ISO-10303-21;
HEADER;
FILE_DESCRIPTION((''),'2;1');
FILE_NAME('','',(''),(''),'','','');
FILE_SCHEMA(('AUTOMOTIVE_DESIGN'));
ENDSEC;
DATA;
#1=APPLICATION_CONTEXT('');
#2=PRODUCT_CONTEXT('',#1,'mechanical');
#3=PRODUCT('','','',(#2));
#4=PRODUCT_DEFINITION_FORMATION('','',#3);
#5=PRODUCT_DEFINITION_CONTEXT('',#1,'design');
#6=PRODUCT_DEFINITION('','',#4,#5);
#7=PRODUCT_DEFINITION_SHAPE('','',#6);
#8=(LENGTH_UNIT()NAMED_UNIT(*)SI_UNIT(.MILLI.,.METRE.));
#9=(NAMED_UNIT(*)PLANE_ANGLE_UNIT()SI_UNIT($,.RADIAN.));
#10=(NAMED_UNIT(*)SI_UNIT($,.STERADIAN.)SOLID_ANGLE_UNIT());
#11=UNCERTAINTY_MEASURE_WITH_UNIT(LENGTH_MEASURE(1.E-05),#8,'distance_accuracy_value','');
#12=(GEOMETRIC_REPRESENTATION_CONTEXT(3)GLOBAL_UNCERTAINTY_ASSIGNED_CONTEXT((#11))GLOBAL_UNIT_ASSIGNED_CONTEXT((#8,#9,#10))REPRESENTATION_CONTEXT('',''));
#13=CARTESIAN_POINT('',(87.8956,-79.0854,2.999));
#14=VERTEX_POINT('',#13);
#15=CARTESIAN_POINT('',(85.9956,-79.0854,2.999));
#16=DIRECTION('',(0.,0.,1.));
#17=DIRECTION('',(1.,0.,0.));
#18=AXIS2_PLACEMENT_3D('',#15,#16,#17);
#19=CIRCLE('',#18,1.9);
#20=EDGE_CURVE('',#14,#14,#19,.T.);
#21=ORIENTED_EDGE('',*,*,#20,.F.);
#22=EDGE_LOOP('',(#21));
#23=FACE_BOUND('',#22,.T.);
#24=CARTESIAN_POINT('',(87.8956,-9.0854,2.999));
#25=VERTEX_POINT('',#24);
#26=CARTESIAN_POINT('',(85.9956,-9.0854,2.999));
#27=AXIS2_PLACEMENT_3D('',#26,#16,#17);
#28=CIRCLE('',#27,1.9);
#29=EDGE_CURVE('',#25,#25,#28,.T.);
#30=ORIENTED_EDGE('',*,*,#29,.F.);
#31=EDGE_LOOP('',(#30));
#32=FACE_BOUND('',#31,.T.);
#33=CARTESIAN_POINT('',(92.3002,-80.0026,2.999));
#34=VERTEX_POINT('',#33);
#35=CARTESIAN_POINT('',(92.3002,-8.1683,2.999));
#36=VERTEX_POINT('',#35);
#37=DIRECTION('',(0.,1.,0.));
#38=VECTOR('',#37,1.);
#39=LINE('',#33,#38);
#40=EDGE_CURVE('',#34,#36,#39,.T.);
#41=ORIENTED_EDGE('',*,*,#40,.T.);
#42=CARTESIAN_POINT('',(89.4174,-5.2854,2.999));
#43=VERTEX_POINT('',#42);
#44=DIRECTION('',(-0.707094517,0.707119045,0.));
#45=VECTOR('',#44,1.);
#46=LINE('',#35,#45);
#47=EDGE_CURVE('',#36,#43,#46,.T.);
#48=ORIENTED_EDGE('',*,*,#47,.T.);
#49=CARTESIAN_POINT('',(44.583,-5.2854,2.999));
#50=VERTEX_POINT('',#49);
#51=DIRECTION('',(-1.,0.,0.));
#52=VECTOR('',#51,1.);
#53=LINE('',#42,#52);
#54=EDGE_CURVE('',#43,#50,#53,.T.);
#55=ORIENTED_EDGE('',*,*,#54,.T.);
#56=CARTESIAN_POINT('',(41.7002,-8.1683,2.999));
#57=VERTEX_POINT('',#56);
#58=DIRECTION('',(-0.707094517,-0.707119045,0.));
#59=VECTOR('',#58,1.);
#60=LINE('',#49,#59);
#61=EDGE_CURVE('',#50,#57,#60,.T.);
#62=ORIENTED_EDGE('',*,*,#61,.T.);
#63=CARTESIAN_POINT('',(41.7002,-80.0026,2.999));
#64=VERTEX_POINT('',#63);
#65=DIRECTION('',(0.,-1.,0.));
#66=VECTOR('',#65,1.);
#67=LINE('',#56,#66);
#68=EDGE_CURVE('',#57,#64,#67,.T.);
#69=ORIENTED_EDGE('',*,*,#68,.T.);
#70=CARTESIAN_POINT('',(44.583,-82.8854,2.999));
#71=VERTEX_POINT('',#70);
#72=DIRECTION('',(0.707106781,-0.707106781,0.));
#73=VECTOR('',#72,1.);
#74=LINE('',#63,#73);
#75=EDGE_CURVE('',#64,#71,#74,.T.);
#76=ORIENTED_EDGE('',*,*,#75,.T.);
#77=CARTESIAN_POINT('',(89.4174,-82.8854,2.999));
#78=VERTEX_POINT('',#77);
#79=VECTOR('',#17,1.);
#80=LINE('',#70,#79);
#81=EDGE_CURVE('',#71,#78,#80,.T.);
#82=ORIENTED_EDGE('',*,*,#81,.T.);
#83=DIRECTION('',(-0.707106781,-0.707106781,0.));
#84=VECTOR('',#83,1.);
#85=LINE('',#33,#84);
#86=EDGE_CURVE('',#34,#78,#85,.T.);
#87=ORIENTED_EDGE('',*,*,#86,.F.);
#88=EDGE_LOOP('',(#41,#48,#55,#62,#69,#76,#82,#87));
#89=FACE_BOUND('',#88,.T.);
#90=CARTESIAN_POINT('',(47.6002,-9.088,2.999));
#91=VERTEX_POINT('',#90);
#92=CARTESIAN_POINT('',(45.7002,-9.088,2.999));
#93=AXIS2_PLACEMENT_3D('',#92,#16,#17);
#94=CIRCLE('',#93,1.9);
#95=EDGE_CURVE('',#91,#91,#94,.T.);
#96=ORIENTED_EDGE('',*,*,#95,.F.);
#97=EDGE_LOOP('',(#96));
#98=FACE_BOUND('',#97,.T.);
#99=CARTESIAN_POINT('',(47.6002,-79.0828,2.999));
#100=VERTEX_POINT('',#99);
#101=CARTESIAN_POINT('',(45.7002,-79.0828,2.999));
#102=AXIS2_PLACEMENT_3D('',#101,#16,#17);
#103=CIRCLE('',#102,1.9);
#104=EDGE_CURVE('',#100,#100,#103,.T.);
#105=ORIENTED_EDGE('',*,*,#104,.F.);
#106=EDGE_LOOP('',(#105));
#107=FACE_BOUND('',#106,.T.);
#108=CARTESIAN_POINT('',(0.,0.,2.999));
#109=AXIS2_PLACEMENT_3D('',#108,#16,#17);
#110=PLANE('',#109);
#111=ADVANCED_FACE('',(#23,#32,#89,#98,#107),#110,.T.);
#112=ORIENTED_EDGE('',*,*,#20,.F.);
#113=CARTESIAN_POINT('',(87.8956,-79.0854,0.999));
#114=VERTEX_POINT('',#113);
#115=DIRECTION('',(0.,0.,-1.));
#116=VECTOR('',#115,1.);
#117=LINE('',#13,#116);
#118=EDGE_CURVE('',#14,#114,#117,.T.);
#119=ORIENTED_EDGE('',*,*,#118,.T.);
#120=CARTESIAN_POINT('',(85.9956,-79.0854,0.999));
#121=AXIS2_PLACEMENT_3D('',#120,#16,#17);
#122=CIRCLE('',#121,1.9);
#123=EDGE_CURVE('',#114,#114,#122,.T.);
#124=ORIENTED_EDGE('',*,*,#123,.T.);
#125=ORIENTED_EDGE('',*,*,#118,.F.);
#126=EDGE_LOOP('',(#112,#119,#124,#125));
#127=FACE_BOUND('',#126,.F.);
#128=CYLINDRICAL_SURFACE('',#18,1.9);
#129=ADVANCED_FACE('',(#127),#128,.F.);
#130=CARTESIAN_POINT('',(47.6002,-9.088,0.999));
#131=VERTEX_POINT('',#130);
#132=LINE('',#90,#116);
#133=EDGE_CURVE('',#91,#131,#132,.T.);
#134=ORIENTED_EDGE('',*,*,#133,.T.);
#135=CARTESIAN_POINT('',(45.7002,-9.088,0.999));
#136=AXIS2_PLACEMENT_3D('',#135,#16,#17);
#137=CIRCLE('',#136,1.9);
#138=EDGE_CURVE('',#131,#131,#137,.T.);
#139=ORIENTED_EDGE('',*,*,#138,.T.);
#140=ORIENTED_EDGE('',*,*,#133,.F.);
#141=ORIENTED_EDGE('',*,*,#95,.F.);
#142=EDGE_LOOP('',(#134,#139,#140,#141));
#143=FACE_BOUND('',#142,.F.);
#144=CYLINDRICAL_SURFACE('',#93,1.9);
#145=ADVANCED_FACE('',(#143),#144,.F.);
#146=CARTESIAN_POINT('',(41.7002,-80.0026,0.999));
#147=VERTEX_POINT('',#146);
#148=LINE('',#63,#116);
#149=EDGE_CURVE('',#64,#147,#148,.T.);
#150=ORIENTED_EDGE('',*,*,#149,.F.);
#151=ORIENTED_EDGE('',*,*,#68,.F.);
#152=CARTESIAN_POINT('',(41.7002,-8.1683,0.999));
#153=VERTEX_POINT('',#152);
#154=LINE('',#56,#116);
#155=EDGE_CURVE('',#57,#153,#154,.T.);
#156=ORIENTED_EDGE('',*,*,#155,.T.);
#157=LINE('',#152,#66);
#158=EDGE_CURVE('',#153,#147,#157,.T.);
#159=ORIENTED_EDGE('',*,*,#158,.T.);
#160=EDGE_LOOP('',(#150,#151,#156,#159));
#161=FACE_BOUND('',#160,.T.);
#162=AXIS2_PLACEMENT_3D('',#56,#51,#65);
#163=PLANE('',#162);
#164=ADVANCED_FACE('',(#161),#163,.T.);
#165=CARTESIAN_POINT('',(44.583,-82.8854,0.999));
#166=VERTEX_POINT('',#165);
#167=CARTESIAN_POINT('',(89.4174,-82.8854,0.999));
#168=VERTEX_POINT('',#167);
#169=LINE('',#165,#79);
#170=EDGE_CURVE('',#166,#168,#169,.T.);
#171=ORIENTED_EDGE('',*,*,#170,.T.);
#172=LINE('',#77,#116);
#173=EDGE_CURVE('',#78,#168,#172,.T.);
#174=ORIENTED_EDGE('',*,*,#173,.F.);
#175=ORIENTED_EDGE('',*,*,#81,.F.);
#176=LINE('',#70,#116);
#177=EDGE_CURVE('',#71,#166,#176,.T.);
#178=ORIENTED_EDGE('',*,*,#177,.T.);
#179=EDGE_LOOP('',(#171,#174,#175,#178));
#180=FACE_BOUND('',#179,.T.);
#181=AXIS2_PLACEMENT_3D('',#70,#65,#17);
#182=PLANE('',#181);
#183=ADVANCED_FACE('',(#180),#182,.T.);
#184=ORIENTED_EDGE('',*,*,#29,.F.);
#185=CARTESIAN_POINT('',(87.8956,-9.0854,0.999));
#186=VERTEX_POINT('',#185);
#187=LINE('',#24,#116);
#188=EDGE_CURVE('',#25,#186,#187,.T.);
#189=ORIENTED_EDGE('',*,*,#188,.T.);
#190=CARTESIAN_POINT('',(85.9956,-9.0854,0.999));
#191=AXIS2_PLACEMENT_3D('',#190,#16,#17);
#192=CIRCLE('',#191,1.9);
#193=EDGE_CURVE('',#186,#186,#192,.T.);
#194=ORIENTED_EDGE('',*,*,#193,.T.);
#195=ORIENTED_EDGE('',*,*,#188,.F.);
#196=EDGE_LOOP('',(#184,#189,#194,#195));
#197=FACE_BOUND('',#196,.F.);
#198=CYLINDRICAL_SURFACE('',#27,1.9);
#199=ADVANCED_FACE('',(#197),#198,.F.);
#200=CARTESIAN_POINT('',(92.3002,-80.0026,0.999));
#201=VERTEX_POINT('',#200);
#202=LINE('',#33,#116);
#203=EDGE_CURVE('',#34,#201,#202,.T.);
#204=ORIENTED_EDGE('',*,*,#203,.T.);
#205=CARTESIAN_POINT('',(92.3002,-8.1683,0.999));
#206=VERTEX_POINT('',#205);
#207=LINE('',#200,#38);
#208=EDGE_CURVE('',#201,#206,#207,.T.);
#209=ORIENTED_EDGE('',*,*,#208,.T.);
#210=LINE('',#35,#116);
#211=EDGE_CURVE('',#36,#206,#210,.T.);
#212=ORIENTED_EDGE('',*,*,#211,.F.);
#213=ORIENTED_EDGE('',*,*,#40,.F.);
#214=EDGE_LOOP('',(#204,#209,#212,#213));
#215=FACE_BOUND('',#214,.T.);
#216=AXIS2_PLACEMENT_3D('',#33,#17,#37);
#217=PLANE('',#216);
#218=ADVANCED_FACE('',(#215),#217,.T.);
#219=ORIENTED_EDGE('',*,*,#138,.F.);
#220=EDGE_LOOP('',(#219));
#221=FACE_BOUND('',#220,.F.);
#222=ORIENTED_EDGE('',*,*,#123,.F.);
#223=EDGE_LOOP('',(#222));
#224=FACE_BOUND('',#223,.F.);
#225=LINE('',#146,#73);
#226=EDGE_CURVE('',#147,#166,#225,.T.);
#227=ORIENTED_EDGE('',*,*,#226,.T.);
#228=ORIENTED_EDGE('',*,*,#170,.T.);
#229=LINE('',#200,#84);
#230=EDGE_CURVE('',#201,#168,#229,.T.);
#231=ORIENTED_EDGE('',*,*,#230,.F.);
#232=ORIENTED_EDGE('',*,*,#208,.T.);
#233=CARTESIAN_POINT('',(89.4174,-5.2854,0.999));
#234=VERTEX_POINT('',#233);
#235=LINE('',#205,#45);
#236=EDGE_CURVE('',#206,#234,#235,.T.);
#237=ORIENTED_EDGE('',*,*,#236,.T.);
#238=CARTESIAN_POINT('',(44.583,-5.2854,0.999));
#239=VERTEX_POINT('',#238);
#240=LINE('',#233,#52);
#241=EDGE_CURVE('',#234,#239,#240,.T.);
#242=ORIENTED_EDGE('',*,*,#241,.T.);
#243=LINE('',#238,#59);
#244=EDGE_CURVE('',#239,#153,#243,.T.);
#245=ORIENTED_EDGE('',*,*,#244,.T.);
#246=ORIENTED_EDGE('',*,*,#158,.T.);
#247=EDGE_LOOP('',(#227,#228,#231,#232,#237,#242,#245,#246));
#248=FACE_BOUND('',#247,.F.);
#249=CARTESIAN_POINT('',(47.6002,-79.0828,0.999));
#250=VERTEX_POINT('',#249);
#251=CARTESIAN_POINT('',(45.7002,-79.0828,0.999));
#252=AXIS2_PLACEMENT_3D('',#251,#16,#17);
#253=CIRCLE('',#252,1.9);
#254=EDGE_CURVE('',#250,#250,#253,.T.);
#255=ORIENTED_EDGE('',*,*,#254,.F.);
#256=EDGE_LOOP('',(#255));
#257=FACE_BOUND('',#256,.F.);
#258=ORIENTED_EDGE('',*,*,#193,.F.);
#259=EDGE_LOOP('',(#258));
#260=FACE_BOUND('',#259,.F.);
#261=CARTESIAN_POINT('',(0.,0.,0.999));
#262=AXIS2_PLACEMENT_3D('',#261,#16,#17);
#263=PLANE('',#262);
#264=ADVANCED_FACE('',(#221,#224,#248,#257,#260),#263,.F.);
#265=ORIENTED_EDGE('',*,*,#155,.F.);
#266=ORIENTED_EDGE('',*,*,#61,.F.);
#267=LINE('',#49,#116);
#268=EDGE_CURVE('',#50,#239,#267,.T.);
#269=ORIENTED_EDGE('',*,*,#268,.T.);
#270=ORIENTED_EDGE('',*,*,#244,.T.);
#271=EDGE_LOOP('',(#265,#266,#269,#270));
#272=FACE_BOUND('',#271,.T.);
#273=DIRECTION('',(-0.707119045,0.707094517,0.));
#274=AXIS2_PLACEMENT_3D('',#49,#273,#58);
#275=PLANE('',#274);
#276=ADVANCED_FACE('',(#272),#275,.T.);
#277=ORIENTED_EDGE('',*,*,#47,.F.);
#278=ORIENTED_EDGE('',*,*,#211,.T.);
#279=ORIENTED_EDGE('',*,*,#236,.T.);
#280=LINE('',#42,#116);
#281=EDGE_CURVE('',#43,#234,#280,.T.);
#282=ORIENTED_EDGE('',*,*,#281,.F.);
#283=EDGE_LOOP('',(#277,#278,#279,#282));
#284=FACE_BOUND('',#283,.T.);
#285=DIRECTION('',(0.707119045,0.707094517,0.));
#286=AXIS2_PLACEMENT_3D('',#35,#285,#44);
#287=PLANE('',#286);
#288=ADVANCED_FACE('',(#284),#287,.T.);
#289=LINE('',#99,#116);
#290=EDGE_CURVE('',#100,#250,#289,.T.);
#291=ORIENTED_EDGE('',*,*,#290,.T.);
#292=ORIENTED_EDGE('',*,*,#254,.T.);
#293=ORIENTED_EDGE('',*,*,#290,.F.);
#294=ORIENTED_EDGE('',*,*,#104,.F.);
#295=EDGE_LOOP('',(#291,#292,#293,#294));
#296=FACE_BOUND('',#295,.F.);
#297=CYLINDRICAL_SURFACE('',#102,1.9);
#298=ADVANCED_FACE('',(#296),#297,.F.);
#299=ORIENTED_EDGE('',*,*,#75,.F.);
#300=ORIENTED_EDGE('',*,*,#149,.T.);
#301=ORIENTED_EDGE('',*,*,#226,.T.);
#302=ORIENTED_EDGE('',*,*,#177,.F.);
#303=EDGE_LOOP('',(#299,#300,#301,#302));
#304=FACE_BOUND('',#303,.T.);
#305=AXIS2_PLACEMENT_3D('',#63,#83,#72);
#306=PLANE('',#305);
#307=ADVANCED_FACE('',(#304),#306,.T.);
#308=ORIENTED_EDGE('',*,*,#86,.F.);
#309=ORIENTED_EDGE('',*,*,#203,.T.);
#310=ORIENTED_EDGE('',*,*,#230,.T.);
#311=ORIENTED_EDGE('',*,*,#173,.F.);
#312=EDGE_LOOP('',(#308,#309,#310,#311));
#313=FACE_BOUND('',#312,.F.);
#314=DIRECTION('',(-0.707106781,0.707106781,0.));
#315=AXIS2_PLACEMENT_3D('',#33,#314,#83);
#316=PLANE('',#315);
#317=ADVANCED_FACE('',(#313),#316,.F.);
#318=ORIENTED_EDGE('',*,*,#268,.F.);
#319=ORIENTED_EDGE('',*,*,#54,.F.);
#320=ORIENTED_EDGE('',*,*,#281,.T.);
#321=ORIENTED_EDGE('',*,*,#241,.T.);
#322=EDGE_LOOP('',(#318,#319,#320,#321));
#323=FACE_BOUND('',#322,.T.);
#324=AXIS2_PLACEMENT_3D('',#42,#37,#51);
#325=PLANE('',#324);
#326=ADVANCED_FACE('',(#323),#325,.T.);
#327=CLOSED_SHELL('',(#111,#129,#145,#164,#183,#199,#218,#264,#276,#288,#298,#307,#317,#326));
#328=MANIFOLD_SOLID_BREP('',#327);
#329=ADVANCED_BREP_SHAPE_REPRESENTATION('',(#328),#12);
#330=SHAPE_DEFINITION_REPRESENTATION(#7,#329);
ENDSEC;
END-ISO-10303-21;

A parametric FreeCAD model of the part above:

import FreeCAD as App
import Part
import Sketcher

V = App.Vector
Q = App.Units.Quantity


def add_polygon(sketch, points):
    """Adds a closed chain of lines whose ends are joined by coincident constraints."""
    first, n = sketch.GeometryCount, len(points)
    for a, b in zip(points, points[1:] + points[:1]):
        sketch.addGeometry(Part.LineSegment(App.Vector(*a, 0), App.Vector(*b, 0)), False)
    for i in range(n):
        sketch.addConstraint(Sketcher.Constraint("Coincident", first + i, 2, first + (i + 1) % n, 1))

doc = App.newDocument("Part")
body = doc.addObject("PartDesign::Body", "Body")

# Sketch on XY plane
sketch1 = doc.addObject("Sketcher::SketchObject", "Sketch")
body.addObject(sketch1)
sketch1.AttachmentSupport = (doc.XY_Plane, [""])
sketch1.MapMode = "FlatFace"
sketch1.AttachmentOffset = App.Placement(V(0, 0, 2.999), App.Rotation())
add_polygon(sketch1, [(41.7, -80), (44.6, -82.9), (89.4, -82.9), (92.3, -80), (92.3, -8.2), (89.4, -5.3), (44.6, -5.3), (41.7, -8.2)])  # lines 0-7
sketch1.addGeometry(Part.Circle(V(45.7, -79.1, 0), V(0, 0, 1), 1.9), False)  # 8
sketch1.addGeometry(Part.Circle(V(86, -79.1, 0), V(0, 0, 1), 1.9), False)  # 9
sketch1.addGeometry(Part.Circle(V(45.7, -9.1, 0), V(0, 0, 1), 1.9), False)  # 10
sketch1.addGeometry(Part.Circle(V(86, -9.1, 0), V(0, 0, 1), 1.9), False)  # 11
sketch1.addConstraint(Sketcher.Constraint("Horizontal", 1))
sketch1.addConstraint(Sketcher.Constraint("Vertical", 3))
sketch1.addConstraint(Sketcher.Constraint("Horizontal", 5))
sketch1.addConstraint(Sketcher.Constraint("Vertical", 7))
sketch1.addConstraint(Sketcher.Constraint("Equal", 8, 9))
sketch1.addConstraint(Sketcher.Constraint("Equal", 9, 10))
sketch1.addConstraint(Sketcher.Constraint("Equal", 10, 11))
sketch1.addConstraint(Sketcher.Constraint("Perpendicular", 0, 2))
sketch1.addConstraint(Sketcher.Constraint("Perpendicular", 2, 4))
sketch1.addConstraint(Sketcher.Constraint("Perpendicular", 4, 6))
sketch1.addConstraint(Sketcher.Constraint("Horizontal", 3, 2, 6, 2))
sketch1.addConstraint(Sketcher.Constraint("Horizontal", 2, 2, 7, 2))
sketch1.addConstraint(Sketcher.Constraint("Vertical", 8, 3, 10, 3))
sketch1.addConstraint(Sketcher.Constraint("Vertical", 9, 3, 11, 3))
sketch1.addConstraint(Sketcher.Constraint("Vertical", 1, 2, 4, 2))
sketch1.addConstraint(Sketcher.Constraint("Vertical", 0, 2, 5, 2))
sketch1.addConstraint(Sketcher.Constraint("Diameter", 8, Q("3.8 mm")))
sketch1.addConstraint(Sketcher.Constraint("DistanceX", 6, 2, 10, 3, Q("4 mm")))
sketch1.addConstraint(Sketcher.Constraint("DistanceY", 0, 2, 9, 3, Q("3.8 mm")))
sketch1.addConstraint(Sketcher.Constraint("DistanceY", 11, 3, 4, 2, Q("3.8 mm")))
sketch1.addConstraint(Sketcher.Constraint("DistanceY", 9, 3, 11, 3, Q("70 mm")))
sketch1.addConstraint(Sketcher.Constraint("DistanceX", 8, 3, 9, 3, Q("40.2954 mm")))
sketch1.addConstraint(Sketcher.Constraint("DistanceX", 8, 3, 2, 2, Q("46.6 mm")))
sketch1.addConstraint(Sketcher.Constraint("Distance", 0, Q("4.077 mm")))
sketch1.addConstraint(Sketcher.Constraint("DistanceY", 10, 3, -1, 1, Q("9.088 mm")))
sketch1.addConstraint(Sketcher.Constraint("DistanceX", -1, 1, 0, 2, Q("44.583 mm")))
sketch1.addConstraint(Sketcher.Constraint("DistanceY", 8, 3, -1, 1, Q("79.0828 mm")))
sketch1.addConstraint(Sketcher.Constraint("DistanceY", 9, 3, -1, 1, Q("79.0854 mm")))
pad1 = doc.addObject("PartDesign::Pad", "Pad")
body.addObject(pad1)
pad1.Profile = sketch1
pad1.Length = 2
pad1.Reversed = True

doc.recompute()
